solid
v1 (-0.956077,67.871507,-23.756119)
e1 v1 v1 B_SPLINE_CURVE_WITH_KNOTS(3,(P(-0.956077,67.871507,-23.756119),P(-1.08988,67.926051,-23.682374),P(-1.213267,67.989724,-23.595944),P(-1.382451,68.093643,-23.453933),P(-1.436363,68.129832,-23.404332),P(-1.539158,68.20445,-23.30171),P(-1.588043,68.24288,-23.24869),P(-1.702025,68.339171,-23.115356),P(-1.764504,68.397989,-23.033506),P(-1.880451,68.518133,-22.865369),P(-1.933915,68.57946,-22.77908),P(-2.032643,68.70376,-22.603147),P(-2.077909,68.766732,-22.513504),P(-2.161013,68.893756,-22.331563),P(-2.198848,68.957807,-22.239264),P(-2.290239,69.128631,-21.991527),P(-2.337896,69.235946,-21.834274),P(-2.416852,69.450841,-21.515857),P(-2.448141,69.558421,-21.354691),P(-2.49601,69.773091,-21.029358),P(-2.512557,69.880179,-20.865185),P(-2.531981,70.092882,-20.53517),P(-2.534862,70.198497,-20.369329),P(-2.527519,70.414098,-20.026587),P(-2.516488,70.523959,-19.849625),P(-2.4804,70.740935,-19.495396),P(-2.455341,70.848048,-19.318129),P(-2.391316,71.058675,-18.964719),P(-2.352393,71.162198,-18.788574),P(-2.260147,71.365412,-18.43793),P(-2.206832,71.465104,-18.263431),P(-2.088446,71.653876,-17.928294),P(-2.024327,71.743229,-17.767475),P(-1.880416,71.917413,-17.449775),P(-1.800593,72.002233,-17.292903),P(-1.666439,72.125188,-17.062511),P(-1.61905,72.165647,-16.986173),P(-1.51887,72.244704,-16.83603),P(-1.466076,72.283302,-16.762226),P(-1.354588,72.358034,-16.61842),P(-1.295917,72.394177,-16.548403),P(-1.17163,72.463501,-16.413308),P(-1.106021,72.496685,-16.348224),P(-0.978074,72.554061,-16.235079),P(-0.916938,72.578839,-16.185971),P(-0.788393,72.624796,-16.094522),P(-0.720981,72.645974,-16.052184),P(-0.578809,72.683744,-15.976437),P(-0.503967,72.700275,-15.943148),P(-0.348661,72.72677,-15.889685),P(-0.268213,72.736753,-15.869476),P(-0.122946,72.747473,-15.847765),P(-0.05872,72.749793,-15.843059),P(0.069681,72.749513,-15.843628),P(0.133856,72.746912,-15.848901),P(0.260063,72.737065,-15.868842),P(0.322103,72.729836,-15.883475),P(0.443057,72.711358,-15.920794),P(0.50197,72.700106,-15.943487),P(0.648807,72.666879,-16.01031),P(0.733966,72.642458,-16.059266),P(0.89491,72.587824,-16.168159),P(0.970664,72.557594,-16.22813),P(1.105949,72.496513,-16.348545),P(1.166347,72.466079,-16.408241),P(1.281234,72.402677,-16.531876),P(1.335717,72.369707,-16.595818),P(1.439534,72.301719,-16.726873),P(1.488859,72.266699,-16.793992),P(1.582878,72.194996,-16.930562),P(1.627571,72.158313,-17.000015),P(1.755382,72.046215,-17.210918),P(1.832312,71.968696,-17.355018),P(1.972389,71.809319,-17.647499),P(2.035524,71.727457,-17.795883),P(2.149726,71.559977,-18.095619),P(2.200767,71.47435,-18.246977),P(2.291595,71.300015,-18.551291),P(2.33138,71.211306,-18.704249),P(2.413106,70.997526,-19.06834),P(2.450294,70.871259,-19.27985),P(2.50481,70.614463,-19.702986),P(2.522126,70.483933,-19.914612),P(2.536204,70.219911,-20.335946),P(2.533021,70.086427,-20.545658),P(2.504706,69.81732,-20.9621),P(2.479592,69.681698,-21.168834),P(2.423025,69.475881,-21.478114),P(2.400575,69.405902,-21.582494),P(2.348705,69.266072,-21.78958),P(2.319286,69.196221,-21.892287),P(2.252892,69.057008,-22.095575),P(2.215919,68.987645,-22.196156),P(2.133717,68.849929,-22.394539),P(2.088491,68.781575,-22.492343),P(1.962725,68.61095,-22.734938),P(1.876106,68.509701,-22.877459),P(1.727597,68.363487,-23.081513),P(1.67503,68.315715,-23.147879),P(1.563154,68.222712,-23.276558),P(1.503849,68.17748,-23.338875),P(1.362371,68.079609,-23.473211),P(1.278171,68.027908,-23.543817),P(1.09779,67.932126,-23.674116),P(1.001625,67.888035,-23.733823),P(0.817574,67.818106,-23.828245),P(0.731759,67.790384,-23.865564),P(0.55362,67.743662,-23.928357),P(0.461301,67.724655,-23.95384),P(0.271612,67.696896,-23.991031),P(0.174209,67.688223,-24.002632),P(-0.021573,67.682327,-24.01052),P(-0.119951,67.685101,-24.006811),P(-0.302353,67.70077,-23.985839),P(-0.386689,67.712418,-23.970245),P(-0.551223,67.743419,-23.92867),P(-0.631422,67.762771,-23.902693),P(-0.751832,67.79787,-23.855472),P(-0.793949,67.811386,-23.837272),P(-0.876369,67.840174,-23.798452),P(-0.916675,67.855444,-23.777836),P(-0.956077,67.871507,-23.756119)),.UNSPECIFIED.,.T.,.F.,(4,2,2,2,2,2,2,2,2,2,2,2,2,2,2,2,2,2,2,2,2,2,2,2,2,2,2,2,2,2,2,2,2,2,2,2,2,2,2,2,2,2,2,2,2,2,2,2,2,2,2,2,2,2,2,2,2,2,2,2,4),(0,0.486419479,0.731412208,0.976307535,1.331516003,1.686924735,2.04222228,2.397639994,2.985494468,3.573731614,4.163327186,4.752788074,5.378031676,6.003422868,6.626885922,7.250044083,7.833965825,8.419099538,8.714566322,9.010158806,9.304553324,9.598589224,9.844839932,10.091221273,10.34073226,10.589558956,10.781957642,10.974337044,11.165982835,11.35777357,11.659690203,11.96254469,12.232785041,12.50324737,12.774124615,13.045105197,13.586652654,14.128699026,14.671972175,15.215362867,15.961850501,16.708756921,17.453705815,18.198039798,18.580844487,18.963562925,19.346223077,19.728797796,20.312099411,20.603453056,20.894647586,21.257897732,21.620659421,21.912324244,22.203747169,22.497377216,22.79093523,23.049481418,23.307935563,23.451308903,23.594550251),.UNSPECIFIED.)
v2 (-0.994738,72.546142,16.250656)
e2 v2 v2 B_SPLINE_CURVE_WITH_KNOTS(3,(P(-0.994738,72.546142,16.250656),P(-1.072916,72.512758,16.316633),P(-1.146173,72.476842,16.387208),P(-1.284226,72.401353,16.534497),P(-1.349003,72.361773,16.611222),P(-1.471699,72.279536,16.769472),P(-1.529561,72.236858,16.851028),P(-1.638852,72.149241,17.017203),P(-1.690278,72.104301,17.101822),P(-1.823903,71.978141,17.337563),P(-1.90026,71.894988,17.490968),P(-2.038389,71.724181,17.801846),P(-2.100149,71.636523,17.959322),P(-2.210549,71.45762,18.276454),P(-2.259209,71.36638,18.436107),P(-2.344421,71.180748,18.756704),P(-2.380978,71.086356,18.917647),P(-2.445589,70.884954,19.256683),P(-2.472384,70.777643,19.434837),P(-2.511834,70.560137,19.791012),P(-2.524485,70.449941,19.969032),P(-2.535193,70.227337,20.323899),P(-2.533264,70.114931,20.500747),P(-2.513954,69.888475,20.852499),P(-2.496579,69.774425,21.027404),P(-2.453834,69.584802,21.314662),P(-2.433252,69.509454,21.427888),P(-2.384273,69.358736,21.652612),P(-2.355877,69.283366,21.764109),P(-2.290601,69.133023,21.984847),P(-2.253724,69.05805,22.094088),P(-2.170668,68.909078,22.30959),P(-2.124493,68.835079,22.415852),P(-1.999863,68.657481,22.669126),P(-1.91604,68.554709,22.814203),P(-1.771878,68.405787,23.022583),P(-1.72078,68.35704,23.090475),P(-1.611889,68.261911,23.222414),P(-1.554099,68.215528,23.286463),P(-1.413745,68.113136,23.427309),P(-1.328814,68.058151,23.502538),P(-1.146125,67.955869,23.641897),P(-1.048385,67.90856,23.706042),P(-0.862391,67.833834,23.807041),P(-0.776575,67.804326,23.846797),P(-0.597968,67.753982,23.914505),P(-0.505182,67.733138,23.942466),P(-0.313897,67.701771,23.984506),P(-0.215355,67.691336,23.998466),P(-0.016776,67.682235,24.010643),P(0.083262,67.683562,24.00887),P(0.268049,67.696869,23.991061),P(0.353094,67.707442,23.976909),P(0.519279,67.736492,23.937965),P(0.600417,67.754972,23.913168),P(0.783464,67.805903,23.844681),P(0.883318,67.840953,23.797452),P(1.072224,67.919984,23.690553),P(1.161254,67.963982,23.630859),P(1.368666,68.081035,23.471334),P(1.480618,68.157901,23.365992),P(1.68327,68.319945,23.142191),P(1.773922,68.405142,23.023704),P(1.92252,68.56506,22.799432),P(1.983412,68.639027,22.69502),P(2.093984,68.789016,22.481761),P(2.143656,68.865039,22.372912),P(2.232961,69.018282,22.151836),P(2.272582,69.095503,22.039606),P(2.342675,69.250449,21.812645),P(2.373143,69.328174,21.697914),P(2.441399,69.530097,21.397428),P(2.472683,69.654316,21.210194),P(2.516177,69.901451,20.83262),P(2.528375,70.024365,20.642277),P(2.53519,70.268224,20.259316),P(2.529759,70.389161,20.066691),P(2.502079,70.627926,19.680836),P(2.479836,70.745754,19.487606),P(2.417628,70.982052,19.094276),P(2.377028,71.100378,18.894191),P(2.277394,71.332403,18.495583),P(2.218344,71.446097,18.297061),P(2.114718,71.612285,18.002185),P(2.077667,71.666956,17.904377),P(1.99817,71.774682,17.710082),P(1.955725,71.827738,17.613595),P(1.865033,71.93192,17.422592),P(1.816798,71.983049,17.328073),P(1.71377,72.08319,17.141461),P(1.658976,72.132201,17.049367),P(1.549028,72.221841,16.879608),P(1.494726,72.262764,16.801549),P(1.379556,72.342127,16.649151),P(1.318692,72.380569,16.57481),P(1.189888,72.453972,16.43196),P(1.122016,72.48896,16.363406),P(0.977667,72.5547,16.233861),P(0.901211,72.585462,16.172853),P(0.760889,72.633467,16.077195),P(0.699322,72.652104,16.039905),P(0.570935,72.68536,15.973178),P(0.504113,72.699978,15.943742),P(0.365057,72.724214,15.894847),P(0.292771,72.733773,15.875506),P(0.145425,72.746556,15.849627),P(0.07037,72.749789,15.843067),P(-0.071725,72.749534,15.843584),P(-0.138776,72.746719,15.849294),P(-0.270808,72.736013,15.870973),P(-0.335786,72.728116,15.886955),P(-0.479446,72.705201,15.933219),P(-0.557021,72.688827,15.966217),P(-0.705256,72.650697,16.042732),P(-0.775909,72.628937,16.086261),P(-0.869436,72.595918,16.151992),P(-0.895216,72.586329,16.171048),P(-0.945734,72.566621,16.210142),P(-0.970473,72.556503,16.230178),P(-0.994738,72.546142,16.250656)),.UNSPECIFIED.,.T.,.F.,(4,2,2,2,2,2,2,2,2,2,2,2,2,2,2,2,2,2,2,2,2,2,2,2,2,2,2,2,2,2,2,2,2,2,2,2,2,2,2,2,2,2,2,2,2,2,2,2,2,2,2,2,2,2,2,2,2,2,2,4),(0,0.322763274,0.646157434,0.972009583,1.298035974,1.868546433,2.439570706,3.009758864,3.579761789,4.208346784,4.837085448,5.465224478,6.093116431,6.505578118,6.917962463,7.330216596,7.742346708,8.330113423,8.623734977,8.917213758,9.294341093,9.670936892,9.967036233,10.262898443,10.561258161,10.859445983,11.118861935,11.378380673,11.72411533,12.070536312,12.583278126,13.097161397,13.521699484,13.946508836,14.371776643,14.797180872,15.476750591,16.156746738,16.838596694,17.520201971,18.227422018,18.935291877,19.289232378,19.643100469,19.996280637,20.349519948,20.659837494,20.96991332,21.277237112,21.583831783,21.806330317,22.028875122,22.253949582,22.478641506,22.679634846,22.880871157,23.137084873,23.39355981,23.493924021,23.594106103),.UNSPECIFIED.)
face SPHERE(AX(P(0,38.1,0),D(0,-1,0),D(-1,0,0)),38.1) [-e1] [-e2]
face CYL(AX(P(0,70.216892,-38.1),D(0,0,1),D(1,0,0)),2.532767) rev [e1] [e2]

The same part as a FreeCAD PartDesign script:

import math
import FreeCAD as App
import Part
import Sketcher
from FreeCAD import Vector
Q = App.Units.Quantity

doc = App.newDocument("Part")
body = doc.addObject("PartDesign::Body", "Body")

sketch1 = body.newObject("Sketcher::SketchObject", "Sketch")
sketch1.AttachmentSupport = (doc.getObject("XY_Plane"), [""])
sketch1.MapMode = "FlatFace"
sketch1.addGeometry([
    Part.LineSegment(Vector(0, 76, 0), Vector(0, 0, 0)),
    Part.ArcOfCircle(Part.Circle(Vector(0, 38, 0), Vector(0, 0, 1), 38), math.radians(-90), math.radians(90)),
], False)
sketch1.addConstraint([
    Sketcher.Constraint("Coincident", 0, 1, 1, 2),
    Sketcher.Constraint("Coincident", 1, 1, 0, 2),
    Sketcher.Constraint("Vertical", 0),
    Sketcher.Constraint("Coincident", 1, 1, -1, 1),
    Sketcher.Constraint("PointOnObject", 1, 3, -2),
    Sketcher.Constraint("Radius", 1, Q("1.5 in")),
])
revolution = body.newObject("PartDesign::Revolution", "Revolution")
revolution.Profile = sketch1
revolution.ReferenceAxis = (sketch1, ["V_Axis"])
revolution.Angle = 360

sketch2 = body.newObject("Sketcher::SketchObject", "Sketch001")
sketch2.AttachmentSupport = (doc.getObject("XY_Plane"), [""])
sketch2.MapMode = "FlatFace"
sketch2.addGeometry(Part.Circle(Vector(0, 70.2, 0), Vector(0, 0, 1), 2.5), False)
sketch2.addConstraint([
    Sketcher.Constraint("PointOnObject", 0, 3, -2),
    Sketcher.Constraint("Diameter", 0, Q("5.065534 mm")),
    Sketcher.Constraint("DistanceY", -1, 1, 0, 3, Q("70.216892 mm")),
])
pocket1 = body.newObject("PartDesign::Pocket", "Pocket")
pocket1.Profile = sketch2
pocket1.Type = "ThroughAll"
pocket1.Midplane = True

doc.recompute()
